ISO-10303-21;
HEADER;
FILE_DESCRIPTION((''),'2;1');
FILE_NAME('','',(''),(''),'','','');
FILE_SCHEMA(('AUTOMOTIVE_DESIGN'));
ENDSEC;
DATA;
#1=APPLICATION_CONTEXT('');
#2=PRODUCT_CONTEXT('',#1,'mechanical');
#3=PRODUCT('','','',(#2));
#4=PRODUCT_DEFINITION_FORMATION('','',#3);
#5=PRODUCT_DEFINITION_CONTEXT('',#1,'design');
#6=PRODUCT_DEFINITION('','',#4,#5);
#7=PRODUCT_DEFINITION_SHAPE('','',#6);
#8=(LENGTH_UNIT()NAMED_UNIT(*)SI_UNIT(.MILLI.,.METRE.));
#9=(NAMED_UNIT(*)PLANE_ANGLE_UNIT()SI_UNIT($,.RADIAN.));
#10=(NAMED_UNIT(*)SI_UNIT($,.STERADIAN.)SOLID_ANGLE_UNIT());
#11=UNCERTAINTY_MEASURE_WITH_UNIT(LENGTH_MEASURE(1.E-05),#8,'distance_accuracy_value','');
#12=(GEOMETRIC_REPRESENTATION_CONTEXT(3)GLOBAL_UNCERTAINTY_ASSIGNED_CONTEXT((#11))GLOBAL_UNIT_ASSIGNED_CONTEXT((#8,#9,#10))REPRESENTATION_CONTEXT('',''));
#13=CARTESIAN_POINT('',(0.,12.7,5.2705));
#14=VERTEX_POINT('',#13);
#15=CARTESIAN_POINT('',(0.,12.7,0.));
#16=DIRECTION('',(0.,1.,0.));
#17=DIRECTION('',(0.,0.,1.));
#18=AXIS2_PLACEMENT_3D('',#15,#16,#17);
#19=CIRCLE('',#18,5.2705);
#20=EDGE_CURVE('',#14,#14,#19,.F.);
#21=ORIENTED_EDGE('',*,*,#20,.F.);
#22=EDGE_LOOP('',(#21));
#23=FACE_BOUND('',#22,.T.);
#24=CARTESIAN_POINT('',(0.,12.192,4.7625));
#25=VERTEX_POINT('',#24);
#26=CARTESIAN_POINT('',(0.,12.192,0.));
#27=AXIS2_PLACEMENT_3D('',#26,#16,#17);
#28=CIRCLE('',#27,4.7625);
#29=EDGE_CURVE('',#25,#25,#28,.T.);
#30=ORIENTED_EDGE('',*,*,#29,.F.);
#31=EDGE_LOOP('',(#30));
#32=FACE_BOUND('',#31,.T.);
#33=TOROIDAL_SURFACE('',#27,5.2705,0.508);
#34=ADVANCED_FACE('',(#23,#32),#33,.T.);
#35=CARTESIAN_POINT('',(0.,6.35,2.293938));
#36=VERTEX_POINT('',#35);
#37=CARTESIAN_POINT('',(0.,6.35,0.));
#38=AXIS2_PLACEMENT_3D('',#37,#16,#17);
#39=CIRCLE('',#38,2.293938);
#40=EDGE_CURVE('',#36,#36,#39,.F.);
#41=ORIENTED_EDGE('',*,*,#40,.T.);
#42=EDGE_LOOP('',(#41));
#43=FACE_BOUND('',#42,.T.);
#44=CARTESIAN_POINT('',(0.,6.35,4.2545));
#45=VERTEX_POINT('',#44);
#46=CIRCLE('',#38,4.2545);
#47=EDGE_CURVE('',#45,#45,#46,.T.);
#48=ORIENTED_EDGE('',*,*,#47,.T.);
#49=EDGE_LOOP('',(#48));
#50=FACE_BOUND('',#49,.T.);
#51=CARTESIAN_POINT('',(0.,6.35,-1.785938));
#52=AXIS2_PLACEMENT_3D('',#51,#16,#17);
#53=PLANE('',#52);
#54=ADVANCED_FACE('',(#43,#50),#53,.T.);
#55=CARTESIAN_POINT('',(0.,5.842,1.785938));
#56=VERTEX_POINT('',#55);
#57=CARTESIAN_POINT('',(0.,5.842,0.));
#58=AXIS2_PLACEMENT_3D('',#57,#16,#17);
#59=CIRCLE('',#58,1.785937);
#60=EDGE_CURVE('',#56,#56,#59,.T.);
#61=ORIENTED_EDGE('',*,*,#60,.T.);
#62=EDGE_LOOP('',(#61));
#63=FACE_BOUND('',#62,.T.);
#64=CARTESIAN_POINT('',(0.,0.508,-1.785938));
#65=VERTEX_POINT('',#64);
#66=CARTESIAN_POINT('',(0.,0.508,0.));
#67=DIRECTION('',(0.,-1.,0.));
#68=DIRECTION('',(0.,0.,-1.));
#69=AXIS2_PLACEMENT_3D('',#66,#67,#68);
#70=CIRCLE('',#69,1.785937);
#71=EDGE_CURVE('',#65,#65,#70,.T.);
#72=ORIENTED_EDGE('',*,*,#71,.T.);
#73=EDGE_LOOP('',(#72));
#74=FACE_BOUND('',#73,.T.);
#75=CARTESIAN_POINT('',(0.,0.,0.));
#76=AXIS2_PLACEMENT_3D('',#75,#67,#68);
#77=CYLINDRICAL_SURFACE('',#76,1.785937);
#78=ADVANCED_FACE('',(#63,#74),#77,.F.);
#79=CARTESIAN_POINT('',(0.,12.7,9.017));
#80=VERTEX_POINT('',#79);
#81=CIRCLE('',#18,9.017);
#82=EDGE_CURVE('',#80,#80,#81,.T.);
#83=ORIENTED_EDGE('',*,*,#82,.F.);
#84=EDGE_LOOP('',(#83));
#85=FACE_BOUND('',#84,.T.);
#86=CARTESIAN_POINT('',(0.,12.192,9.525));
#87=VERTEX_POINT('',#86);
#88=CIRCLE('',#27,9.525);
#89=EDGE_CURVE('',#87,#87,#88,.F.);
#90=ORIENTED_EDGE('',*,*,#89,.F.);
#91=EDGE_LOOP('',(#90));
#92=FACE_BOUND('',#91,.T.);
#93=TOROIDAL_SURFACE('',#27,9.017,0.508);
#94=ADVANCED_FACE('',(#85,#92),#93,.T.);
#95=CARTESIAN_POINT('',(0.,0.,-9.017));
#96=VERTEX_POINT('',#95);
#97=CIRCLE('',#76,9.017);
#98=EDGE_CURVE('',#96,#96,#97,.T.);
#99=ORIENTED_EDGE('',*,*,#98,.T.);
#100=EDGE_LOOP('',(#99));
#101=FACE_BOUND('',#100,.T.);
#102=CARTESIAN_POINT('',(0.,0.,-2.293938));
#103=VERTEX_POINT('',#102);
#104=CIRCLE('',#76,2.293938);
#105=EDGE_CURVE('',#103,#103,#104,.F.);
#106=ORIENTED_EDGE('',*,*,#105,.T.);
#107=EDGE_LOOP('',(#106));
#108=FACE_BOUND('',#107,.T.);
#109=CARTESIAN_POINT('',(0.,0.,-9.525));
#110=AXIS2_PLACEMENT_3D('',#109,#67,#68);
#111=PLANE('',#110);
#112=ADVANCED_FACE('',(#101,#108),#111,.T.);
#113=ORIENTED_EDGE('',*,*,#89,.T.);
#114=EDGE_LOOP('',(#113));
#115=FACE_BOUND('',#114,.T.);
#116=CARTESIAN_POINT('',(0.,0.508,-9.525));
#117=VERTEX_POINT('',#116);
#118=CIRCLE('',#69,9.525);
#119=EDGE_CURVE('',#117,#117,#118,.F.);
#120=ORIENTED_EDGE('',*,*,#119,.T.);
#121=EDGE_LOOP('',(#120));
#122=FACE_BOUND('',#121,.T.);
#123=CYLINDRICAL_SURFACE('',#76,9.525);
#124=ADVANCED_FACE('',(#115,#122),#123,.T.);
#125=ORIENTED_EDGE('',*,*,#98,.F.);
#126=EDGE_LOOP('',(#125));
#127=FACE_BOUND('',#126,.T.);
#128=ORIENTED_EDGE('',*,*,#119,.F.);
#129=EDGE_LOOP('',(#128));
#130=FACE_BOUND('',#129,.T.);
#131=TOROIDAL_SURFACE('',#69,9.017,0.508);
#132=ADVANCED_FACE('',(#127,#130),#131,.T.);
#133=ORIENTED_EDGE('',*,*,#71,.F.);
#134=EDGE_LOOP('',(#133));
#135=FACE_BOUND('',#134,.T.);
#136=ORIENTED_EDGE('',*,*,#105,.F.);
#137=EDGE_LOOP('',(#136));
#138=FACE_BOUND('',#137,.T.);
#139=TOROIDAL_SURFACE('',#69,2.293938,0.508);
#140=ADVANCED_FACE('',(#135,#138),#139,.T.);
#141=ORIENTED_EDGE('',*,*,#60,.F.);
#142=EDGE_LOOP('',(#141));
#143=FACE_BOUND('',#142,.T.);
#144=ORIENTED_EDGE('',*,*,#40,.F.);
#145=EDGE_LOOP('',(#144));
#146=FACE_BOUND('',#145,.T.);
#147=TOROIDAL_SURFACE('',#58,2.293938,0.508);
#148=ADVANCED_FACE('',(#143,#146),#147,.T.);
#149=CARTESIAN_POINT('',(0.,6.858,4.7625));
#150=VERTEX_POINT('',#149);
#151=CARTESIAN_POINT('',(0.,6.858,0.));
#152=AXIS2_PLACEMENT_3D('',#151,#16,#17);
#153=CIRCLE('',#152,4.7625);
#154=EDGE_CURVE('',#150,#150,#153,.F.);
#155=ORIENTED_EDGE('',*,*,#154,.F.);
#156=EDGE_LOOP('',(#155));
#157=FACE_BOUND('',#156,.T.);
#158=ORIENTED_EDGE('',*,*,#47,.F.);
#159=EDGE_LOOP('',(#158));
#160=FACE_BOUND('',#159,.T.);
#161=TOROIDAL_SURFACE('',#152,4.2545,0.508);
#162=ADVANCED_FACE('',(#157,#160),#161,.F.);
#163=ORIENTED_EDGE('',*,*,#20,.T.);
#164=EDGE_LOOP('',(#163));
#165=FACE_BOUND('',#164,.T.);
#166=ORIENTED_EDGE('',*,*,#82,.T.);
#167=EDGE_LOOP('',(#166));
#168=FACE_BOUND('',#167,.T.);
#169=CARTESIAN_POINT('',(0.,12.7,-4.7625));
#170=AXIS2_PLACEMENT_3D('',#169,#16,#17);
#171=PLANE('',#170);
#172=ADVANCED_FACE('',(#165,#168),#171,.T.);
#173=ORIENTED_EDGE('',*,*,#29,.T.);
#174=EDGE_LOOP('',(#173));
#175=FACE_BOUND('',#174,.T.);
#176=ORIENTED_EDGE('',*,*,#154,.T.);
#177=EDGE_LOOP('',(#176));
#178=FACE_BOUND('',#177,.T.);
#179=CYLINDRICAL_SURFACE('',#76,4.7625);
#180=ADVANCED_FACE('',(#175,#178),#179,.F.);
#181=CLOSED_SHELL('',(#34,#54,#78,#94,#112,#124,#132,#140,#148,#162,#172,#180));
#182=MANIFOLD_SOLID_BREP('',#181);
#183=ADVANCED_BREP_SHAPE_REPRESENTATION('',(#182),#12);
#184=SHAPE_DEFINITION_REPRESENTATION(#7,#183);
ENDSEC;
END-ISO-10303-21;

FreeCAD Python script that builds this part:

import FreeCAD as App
import Part
import Sketcher
from FreeCAD import Vector
Q = App.Units.Quantity


def edges_at(feature, points):
    """Names of the edges that pass closest to the given points."""
    edges = feature.Shape.Edges
    near = lambda p: min(range(len(edges)), key=lambda i: edges[i].distToShape(Part.Vertex(*p))[0])
    return sorted({f"Edge{near(p) + 1}" for p in points})

doc = App.newDocument("Part")
body = doc.addObject("PartDesign::Body", "Body")

# Sketch on YZ plane
sketch1 = doc.addObject("Sketcher::SketchObject", "Sketch")
body.addObject(sketch1)
sketch1.AttachmentSupport = (doc.YZ_Plane, [""])
sketch1.MapMode = "FlatFace"
sketch1.addGeometry([
    Part.LineSegment(Vector(6.3, -4.8, 0), Vector(6.3, -1.8, 0)),  # 0
    Part.LineSegment(Vector(6.3, -1.8, 0), Vector(0, -1.8, 0)),  # 1
    Part.LineSegment(Vector(0, -1.8, 0), Vector(0, -9.5, 0)),  # 2
    Part.LineSegment(Vector(0, -9.5, 0), Vector(12.7, -9.5, 0)),  # 3
    Part.LineSegment(Vector(12.7, -9.5, 0), Vector(12.7, -4.8, 0)),  # 4
    Part.LineSegment(Vector(12.7, -4.8, 0), Vector(6.3, -4.8, 0)),  # 5
], False)
sketch1.addConstraint([
    Sketcher.Constraint("Coincident", 0, 2, 1, 1),
    Sketcher.Constraint("Coincident", 1, 2, 2, 1),
    Sketcher.Constraint("Coincident", 2, 2, 3, 1),
    Sketcher.Constraint("Coincident", 3, 2, 4, 1),
    Sketcher.Constraint("Coincident", 4, 2, 5, 1),
    Sketcher.Constraint("Coincident", 5, 2, 0, 1),
    Sketcher.Constraint("Vertical", 0),
    Sketcher.Constraint("Horizontal", 1),
    Sketcher.Constraint("Vertical", 2),
    Sketcher.Constraint("Horizontal", 3),
    Sketcher.Constraint("Vertical", 4),
    Sketcher.Constraint("Horizontal", 5),
    Sketcher.Constraint("PointOnObject", 1, 2, -2),
    Sketcher.Constraint("Equal", 1, 5),
    Sketcher.Constraint("DistanceX", 3, 1, 3, 2, Q("0.5 in")),
    Sketcher.Constraint("DistanceY", 4, 1, 4, 2, Q("0.1875 in")),
    Sketcher.Constraint("DistanceY", 2, 2, -1, 1, Q("0.375 in")),
    Sketcher.Constraint("DistanceY", 0, 1, 0, 2, Q("2.976562 mm")),
])
revolution = doc.addObject("PartDesign::Revolution", "Revolution")
body.addObject(revolution)
revolution.Profile = sketch1
revolution.ReferenceAxis = (sketch1, ["H_Axis"])
revolution.Angle = 360
doc.recompute()

fillet = doc.addObject("PartDesign::Fillet", "Fillet")
body.addObject(fillet)
fillet.Base = (revolution, edges_at(revolution, [
    (0, 6.35, 4.763),
    (0, 6.35, 1.786),
    (0, 0, 1.786),
    (0, 0, 9.525),
    (0, 12.7, 9.525),
    (0, 12.7, 4.763),
]))
fillet.Radius = Q("0.02 in")

doc.recompute()
